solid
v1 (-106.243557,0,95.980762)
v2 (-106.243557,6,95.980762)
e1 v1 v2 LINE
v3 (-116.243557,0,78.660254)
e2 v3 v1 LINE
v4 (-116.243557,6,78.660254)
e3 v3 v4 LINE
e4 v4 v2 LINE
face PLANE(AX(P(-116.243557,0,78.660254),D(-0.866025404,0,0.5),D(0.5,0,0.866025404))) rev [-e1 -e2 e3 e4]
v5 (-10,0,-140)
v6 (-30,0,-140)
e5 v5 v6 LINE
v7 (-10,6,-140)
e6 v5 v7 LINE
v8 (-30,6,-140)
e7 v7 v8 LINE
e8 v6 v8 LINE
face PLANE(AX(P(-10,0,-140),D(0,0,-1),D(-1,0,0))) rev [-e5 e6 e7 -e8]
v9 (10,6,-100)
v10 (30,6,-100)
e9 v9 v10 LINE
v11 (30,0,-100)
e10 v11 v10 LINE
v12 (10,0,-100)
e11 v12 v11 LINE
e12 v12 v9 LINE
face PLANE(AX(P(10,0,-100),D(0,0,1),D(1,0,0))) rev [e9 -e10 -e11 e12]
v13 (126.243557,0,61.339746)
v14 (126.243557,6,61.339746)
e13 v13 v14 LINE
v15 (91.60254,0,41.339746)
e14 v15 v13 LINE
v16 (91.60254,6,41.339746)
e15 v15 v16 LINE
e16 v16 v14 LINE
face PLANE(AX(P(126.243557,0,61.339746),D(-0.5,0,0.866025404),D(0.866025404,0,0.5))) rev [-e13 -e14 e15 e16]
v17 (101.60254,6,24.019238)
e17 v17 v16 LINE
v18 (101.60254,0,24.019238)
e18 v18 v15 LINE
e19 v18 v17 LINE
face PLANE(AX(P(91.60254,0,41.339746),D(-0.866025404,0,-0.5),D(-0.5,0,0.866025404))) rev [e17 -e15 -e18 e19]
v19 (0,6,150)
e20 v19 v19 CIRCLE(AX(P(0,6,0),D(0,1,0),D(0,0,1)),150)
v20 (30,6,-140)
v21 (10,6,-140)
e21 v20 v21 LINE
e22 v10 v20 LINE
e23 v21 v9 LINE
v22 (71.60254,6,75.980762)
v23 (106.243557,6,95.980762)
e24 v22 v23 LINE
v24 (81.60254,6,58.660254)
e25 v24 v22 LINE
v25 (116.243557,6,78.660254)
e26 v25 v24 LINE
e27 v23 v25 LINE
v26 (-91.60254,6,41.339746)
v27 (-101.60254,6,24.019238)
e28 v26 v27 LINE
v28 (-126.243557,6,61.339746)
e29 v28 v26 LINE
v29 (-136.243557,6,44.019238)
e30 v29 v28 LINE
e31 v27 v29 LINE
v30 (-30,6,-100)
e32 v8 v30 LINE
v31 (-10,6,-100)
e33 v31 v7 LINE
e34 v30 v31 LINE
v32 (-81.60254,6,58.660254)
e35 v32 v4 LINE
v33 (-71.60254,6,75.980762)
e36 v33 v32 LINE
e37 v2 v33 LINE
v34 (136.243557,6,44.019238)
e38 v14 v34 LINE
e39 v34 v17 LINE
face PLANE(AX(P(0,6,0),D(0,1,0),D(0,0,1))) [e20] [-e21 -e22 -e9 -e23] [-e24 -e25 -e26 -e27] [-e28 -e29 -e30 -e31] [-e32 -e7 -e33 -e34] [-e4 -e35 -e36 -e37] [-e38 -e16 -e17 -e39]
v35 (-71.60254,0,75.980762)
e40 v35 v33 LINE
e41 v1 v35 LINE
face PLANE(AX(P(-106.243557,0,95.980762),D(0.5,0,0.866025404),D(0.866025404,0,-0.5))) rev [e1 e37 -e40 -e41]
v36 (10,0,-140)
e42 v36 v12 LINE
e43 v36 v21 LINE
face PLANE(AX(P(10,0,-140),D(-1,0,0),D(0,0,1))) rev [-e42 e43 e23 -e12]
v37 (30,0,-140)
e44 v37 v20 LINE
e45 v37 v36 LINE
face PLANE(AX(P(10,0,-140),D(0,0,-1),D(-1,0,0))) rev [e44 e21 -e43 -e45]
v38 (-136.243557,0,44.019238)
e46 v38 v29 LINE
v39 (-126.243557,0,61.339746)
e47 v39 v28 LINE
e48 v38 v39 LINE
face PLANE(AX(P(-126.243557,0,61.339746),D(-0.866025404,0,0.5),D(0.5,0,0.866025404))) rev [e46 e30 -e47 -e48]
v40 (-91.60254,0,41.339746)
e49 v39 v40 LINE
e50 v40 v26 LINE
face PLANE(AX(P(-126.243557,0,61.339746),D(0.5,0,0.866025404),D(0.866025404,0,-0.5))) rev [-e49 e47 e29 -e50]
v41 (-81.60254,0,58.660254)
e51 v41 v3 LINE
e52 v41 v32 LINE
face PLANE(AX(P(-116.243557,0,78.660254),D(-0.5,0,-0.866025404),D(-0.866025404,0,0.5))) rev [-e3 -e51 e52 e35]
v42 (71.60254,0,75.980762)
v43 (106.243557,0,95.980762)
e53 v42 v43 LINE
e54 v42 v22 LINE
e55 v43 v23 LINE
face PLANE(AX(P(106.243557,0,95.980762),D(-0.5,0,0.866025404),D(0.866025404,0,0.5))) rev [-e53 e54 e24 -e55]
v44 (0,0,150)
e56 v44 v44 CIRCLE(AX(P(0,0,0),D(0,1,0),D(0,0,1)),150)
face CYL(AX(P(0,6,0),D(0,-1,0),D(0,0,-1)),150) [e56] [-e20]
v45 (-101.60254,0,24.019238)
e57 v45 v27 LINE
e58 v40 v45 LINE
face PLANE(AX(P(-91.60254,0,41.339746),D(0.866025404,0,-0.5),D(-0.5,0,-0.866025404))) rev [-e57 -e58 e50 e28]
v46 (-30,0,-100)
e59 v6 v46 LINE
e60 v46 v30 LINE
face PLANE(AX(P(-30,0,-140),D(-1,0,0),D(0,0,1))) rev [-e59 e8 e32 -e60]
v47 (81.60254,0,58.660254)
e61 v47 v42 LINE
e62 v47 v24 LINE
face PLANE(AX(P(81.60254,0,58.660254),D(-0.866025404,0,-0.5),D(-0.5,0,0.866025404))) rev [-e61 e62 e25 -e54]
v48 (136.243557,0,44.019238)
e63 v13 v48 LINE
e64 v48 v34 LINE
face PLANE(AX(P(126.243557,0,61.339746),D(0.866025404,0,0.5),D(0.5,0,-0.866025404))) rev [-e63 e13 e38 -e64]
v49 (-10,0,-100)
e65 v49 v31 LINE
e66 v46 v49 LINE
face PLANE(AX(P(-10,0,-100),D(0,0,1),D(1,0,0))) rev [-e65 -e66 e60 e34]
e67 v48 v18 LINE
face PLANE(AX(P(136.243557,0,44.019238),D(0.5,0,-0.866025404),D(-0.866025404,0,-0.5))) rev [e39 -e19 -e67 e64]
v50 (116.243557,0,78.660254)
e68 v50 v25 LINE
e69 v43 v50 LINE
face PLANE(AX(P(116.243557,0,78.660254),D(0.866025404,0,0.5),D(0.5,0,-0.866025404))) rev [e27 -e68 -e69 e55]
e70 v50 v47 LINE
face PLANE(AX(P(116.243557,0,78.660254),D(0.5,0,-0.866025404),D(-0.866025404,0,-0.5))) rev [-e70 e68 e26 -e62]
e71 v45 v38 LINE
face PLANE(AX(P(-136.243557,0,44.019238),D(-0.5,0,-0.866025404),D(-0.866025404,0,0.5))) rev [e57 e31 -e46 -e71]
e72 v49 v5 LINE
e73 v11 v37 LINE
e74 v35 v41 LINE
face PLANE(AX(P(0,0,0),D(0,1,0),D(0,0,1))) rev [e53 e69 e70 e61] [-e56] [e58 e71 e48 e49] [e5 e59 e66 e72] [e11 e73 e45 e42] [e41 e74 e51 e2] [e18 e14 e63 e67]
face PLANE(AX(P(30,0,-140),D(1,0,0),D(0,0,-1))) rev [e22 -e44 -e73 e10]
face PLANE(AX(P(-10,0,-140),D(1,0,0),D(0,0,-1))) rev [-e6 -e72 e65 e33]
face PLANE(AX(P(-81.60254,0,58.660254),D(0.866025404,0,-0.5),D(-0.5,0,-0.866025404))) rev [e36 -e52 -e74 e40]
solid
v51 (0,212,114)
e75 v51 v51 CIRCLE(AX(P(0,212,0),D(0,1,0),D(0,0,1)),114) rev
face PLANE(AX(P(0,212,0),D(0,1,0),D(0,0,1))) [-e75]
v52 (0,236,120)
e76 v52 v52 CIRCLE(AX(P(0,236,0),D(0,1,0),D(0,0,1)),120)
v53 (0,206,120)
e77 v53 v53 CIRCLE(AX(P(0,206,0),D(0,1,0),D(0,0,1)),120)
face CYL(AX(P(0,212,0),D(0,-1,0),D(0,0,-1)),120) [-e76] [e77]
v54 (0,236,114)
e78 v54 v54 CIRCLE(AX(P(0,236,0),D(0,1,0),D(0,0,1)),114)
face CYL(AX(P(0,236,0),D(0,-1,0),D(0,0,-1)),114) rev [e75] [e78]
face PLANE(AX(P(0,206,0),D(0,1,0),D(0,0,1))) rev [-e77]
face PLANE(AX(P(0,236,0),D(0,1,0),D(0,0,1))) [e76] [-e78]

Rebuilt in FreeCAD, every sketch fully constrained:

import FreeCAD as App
import Part
import Sketcher
from FreeCAD import Vector
Q = App.Units.Quantity

doc = App.newDocument("Part")
params = doc.addObject("Spreadsheet::Sheet", "Params")
for row, (alias, value) in enumerate([
    ("sketch1_diameter", "300 mm"),
    ("pad1_length", "6 mm"),
    ("sketch2_width", "20 mm"),
    ("sketch2_height", "40 mm"),
    ("sketch2_length", "40 mm"),
    ("sketch2_length2", "20 mm"),
    ("pocket1_length", "6 mm"),
    ("sketch3_diameter", "240 mm"),
    ("pad2_length", "6 mm"),
    ("sketch4_diameter", "240 mm"),
    ("sketch4_diameter2", "228 mm"),
    ("pad3_length", "24 mm"),
], start=1):
    params.set(f"A{row}", alias)
    params.set(f"B{row}", "=" + value)
    params.setAlias(f"B{row}", alias)

body = doc.addObject("PartDesign::Body", "Body")

sketch1 = body.newObject("Sketcher::SketchObject", "Sketch")
sketch1.AttachmentSupport = (doc.getObject("XZ_Plane"), [""])
sketch1.MapMode = "FlatFace"
sketch1.addGeometry(Part.Circle(Vector(0, 0, 0), Vector(0, 0, 1), 150), False)
sketch1.addConstraint(Sketcher.Constraint("Coincident", 0, 3, -1, 1))
sketch1.addConstraint(Sketcher.Constraint("Diameter", 0, Q("300 mm")))
sketch1.setExpression("Constraints[1]", "Params.sketch1_diameter")
pad1 = body.newObject("PartDesign::Pad", "Pad")
pad1.Profile = sketch1
pad1.setExpression("Length", "Params.pad1_length")
pad1.Reversed = True

sketch2 = body.newObject("Sketcher::SketchObject", "Sketch001")
sketch2.AttachmentSupport = (doc.getObject("XZ_Plane"), [""])
sketch2.MapMode = "FlatFace"
sketch2.AttachmentOffset = App.Placement(Vector(0, 0, -6), App.Rotation())
sketch2.addGeometry(Part.LineSegment(Vector(-30, -140, 0), Vector(-30, -100, 0)), False)
sketch2.addGeometry(Part.LineSegment(Vector(-30, -100, 0), Vector(-10, -100, 0)), False)
sketch2.addGeometry(Part.LineSegment(Vector(-10, -100, 0), Vector(-10, -140, 0)), False)
sketch2.addGeometry(Part.LineSegment(Vector(-10, -140, 0), Vector(-30, -140, 0)), False)
sketch2.addGeometry(Part.LineSegment(Vector(10, -140, 0), Vector(10, -100, 0)), False)
sketch2.addGeometry(Part.LineSegment(Vector(10, -100, 0), Vector(30, -100, 0)), False)
sketch2.addGeometry(Part.LineSegment(Vector(30, -100, 0), Vector(30, -140, 0)), False)
sketch2.addGeometry(Part.LineSegment(Vector(30, -140, 0), Vector(10, -140, 0)), False)
sketch2.addGeometry(Part.LineSegment(Vector(92, 41, 0), Vector(126, 61, 0)), False)
sketch2.addGeometry(Part.LineSegment(Vector(126, 61, 0), Vector(136, 44, 0)), False)
sketch2.addGeometry(Part.LineSegment(Vector(136, 44, 0), Vector(102, 24, 0)), False)
sketch2.addGeometry(Part.LineSegment(Vector(102, 24, 0), Vector(92, 41, 0)), False)
sketch2.addGeometry(Part.LineSegment(Vector(116, 79, 0), Vector(82, 59, 0)), False)
sketch2.addGeometry(Part.LineSegment(Vector(82, 59, 0), Vector(72, 76, 0)), False)
sketch2.addGeometry(Part.LineSegment(Vector(72, 76, 0), Vector(106, 96, 0)), False)
sketch2.addGeometry(Part.LineSegment(Vector(106, 96, 0), Vector(116, 79, 0)), False)
sketch2.addGeometry(Part.LineSegment(Vector(-82, 59, 0), Vector(-116, 79, 0)), False)
sketch2.addGeometry(Part.LineSegment(Vector(-116, 79, 0), Vector(-106, 96, 0)), False)
sketch2.addGeometry(Part.LineSegment(Vector(-106, 96, 0), Vector(-72, 76, 0)), False)
sketch2.addGeometry(Part.LineSegment(Vector(-72, 76, 0), Vector(-82, 59, 0)), False)
sketch2.addGeometry(Part.LineSegment(Vector(-126, 61, 0), Vector(-92, 41, 0)), False)
sketch2.addGeometry(Part.LineSegment(Vector(-92, 41, 0), Vector(-102, 24, 0)), False)
sketch2.addGeometry(Part.LineSegment(Vector(-102, 24, 0), Vector(-136, 44, 0)), False)
sketch2.addGeometry(Part.LineSegment(Vector(-136, 44, 0), Vector(-126, 61, 0)), False)
sketch2.addConstraint(Sketcher.Constraint("Coincident", 0, 2, 1, 1))
sketch2.addConstraint(Sketcher.Constraint("Coincident", 1, 2, 2, 1))
sketch2.addConstraint(Sketcher.Constraint("Coincident", 2, 2, 3, 1))
sketch2.addConstraint(Sketcher.Constraint("Coincident", 3, 2, 0, 1))
sketch2.addConstraint(Sketcher.Constraint("Coincident", 4, 2, 5, 1))
sketch2.addConstraint(Sketcher.Constraint("Coincident", 5, 2, 6, 1))
sketch2.addConstraint(Sketcher.Constraint("Coincident", 6, 2, 7, 1))
sketch2.addConstraint(Sketcher.Constraint("Coincident", 7, 2, 4, 1))
sketch2.addConstraint(Sketcher.Constraint("Coincident", 8, 2, 9, 1))
sketch2.addConstraint(Sketcher.Constraint("Coincident", 9, 2, 10, 1))
sketch2.addConstraint(Sketcher.Constraint("Coincident", 10, 2, 11, 1))
sketch2.addConstraint(Sketcher.Constraint("Coincident", 11, 2, 8, 1))
sketch2.addConstraint(Sketcher.Constraint("Coincident", 12, 2, 13, 1))
sketch2.addConstraint(Sketcher.Constraint("Coincident", 13, 2, 14, 1))
sketch2.addConstraint(Sketcher.Constraint("Coincident", 14, 2, 15, 1))
sketch2.addConstraint(Sketcher.Constraint("Coincident", 15, 2, 12, 1))
sketch2.addConstraint(Sketcher.Constraint("Coincident", 16, 2, 17, 1))
sketch2.addConstraint(Sketcher.Constraint("Coincident", 17, 2, 18, 1))
sketch2.addConstraint(Sketcher.Constraint("Coincident", 18, 2, 19, 1))
sketch2.addConstraint(Sketcher.Constraint("Coincident", 19, 2, 16, 1))
sketch2.addConstraint(Sketcher.Constraint("Coincident", 20, 2, 21, 1))
sketch2.addConstraint(Sketcher.Constraint("Coincident", 21, 2, 22, 1))
sketch2.addConstraint(Sketcher.Constraint("Coincident", 22, 2, 23, 1))
sketch2.addConstraint(Sketcher.Constraint("Coincident", 23, 2, 20, 1))
sketch2.addConstraint(Sketcher.Constraint("Vertical", 0))
sketch2.addConstraint(Sketcher.Constraint("Horizontal", 1))
sketch2.addConstraint(Sketcher.Constraint("Vertical", 2))
sketch2.addConstraint(Sketcher.Constraint("Horizontal", 3))
sketch2.addConstraint(Sketcher.Constraint("Vertical", 4))
sketch2.addConstraint(Sketcher.Constraint("Horizontal", 5))
sketch2.addConstraint(Sketcher.Constraint("Vertical", 6))
sketch2.addConstraint(Sketcher.Constraint("Horizontal", 7))
sketch2.addConstraint(Sketcher.Constraint("Symmetric", 1, 2, 4, 2, -2))
sketch2.addConstraint(Sketcher.Constraint("Symmetric", 3, 2, 6, 2, -2))
sketch2.addConstraint(Sketcher.Constraint("Symmetric", 15, 2, 16, 2, -2))
sketch2.addConstraint(Sketcher.Constraint("Symmetric", 14, 2, 17, 2, -2))
sketch2.addConstraint(Sketcher.Constraint("Symmetric", 13, 2, 18, 2, -2))
sketch2.addConstraint(Sketcher.Constraint("Symmetric", 12, 2, 19, 2, -2))
sketch2.addConstraint(Sketcher.Constraint("Symmetric", 11, 2, 20, 2, -2))
sketch2.addConstraint(Sketcher.Constraint("Symmetric", 10, 2, 21, 2, -2))
sketch2.addConstraint(Sketcher.Constraint("Symmetric", 9, 2, 22, 2, -2))
sketch2.addConstraint(Sketcher.Constraint("Symmetric", 8, 2, 23, 2, -2))
sketch2.addConstraint(Sketcher.Constraint("Perpendicular", 8, 9))
sketch2.addConstraint(Sketcher.Constraint("Perpendicular", 9, 10))
sketch2.addConstraint(Sketcher.Constraint("Perpendicular", 10, 11))
sketch2.addConstraint(Sketcher.Constraint("Perpendicular", 11, 12))
sketch2.addConstraint(Sketcher.Constraint("Perpendicular", 12, 13))
sketch2.addConstraint(Sketcher.Constraint("Perpendicular", 13, 14))
sketch2.addConstraint(Sketcher.Constraint("Perpendicular", 14, 15))
sketch2.addConstraint(Sketcher.Constraint("Equal", 10, 12))
sketch2.addConstraint(Sketcher.Constraint("Equal", 11, 13))
sketch2.addConstraint(Sketcher.Constraint("DistanceX", 1, 1, 1, 2, Q("20 mm")))
sketch2.addConstraint(Sketcher.Constraint("DistanceY", 0, 1, 0, 2, Q("40 mm")))
sketch2.addConstraint(Sketcher.Constraint("Angle", 8, Q("30 deg")))
sketch2.addConstraint(Sketcher.Constraint("Distance", 8, Q("40 mm")))
sketch2.addConstraint(Sketcher.Constraint("Distance", 9, Q("20 mm")))
sketch2.addConstraint(Sketcher.Constraint("DistanceX", 0, 2, -1, 1, Q("30 mm")))
sketch2.addConstraint(Sketcher.Constraint("DistanceY", 0, 2, -1, 1, Q("100 mm")))
sketch2.addConstraint(Sketcher.Constraint("DistanceX", 12, 2, 11, 2, Q("10 mm")))
sketch2.addConstraint(Sketcher.Constraint("DistanceX", -1, 1, 10, 2, Q("101.60254 mm")))
sketch2.addConstraint(Sketcher.Constraint("DistanceY", 11, 2, 12, 2, Q("17.320508 mm")))
sketch2.addConstraint(Sketcher.Constraint("DistanceY", -1, 1, 8, 2, Q("61.339746 mm")))
sketch2.setExpression("Constraints[51]", "Params.sketch2_width")
sketch2.setExpression("Constraints[52]", "Params.sketch2_height")
sketch2.setExpression("Constraints[54]", "Params.sketch2_length")
sketch2.setExpression("Constraints[55]", "Params.sketch2_length2")
pocket1 = body.newObject("PartDesign::Pocket", "Pocket")
pocket1.Profile = sketch2
pocket1.setExpression("Length", "Params.pocket1_length")
pocket1.Reversed = True
body2 = doc.addObject("PartDesign::Body", "Body001")

sketch3 = body2.newObject("Sketcher::SketchObject", "Sketch002")
sketch3.AttachmentSupport = (doc.getObject("XZ_Plane001"), [""])
sketch3.MapMode = "FlatFace"
sketch3.AttachmentOffset = App.Placement(Vector(0, 0, -206), App.Rotation())
sketch3.addGeometry(Part.Circle(Vector(0, 0, 0), Vector(0, 0, 1), 120), False)
sketch3.addConstraint(Sketcher.Constraint("Coincident", 0, 3, -1, 1))
sketch3.addConstraint(Sketcher.Constraint("Diameter", 0, Q("240 mm")))
sketch3.setExpression("Constraints[1]", "Params.sketch3_diameter")
pad2 = body2.newObject("PartDesign::Pad", "Pad001")
pad2.Profile = sketch3
pad2.setExpression("Length", "Params.pad2_length")
pad2.Reversed = True

sketch4 = body2.newObject("Sketcher::SketchObject", "Sketch003")
sketch4.AttachmentSupport = (doc.getObject("XZ_Plane001"), [""])
sketch4.MapMode = "FlatFace"
sketch4.AttachmentOffset = App.Placement(Vector(0, 0, -212), App.Rotation())
sketch4.addGeometry(Part.Circle(Vector(0, 0, 0), Vector(0, 0, 1), 120), False)
sketch4.addGeometry(Part.Circle(Vector(0, 0, 0), Vector(0, 0, 1), 114), False)
sketch4.addConstraint(Sketcher.Constraint("Coincident", 0, 3, -1, 1))
sketch4.addConstraint(Sketcher.Constraint("Coincident", 1, 3, -1, 1))
sketch4.addConstraint(Sketcher.Constraint("Diameter", 0, Q("240 mm")))
sketch4.addConstraint(Sketcher.Constraint("Diameter", 1, Q("228 mm")))
sketch4.setExpression("Constraints[2]", "Params.sketch4_diameter")
sketch4.setExpression("Constraints[3]", "Params.sketch4_diameter2")
pad3 = body2.newObject("PartDesign::Pad", "Pad002")
pad3.Profile = sketch4
pad3.setExpression("Length", "Params.pad3_length")
pad3.Reversed = True

doc.recompute()
